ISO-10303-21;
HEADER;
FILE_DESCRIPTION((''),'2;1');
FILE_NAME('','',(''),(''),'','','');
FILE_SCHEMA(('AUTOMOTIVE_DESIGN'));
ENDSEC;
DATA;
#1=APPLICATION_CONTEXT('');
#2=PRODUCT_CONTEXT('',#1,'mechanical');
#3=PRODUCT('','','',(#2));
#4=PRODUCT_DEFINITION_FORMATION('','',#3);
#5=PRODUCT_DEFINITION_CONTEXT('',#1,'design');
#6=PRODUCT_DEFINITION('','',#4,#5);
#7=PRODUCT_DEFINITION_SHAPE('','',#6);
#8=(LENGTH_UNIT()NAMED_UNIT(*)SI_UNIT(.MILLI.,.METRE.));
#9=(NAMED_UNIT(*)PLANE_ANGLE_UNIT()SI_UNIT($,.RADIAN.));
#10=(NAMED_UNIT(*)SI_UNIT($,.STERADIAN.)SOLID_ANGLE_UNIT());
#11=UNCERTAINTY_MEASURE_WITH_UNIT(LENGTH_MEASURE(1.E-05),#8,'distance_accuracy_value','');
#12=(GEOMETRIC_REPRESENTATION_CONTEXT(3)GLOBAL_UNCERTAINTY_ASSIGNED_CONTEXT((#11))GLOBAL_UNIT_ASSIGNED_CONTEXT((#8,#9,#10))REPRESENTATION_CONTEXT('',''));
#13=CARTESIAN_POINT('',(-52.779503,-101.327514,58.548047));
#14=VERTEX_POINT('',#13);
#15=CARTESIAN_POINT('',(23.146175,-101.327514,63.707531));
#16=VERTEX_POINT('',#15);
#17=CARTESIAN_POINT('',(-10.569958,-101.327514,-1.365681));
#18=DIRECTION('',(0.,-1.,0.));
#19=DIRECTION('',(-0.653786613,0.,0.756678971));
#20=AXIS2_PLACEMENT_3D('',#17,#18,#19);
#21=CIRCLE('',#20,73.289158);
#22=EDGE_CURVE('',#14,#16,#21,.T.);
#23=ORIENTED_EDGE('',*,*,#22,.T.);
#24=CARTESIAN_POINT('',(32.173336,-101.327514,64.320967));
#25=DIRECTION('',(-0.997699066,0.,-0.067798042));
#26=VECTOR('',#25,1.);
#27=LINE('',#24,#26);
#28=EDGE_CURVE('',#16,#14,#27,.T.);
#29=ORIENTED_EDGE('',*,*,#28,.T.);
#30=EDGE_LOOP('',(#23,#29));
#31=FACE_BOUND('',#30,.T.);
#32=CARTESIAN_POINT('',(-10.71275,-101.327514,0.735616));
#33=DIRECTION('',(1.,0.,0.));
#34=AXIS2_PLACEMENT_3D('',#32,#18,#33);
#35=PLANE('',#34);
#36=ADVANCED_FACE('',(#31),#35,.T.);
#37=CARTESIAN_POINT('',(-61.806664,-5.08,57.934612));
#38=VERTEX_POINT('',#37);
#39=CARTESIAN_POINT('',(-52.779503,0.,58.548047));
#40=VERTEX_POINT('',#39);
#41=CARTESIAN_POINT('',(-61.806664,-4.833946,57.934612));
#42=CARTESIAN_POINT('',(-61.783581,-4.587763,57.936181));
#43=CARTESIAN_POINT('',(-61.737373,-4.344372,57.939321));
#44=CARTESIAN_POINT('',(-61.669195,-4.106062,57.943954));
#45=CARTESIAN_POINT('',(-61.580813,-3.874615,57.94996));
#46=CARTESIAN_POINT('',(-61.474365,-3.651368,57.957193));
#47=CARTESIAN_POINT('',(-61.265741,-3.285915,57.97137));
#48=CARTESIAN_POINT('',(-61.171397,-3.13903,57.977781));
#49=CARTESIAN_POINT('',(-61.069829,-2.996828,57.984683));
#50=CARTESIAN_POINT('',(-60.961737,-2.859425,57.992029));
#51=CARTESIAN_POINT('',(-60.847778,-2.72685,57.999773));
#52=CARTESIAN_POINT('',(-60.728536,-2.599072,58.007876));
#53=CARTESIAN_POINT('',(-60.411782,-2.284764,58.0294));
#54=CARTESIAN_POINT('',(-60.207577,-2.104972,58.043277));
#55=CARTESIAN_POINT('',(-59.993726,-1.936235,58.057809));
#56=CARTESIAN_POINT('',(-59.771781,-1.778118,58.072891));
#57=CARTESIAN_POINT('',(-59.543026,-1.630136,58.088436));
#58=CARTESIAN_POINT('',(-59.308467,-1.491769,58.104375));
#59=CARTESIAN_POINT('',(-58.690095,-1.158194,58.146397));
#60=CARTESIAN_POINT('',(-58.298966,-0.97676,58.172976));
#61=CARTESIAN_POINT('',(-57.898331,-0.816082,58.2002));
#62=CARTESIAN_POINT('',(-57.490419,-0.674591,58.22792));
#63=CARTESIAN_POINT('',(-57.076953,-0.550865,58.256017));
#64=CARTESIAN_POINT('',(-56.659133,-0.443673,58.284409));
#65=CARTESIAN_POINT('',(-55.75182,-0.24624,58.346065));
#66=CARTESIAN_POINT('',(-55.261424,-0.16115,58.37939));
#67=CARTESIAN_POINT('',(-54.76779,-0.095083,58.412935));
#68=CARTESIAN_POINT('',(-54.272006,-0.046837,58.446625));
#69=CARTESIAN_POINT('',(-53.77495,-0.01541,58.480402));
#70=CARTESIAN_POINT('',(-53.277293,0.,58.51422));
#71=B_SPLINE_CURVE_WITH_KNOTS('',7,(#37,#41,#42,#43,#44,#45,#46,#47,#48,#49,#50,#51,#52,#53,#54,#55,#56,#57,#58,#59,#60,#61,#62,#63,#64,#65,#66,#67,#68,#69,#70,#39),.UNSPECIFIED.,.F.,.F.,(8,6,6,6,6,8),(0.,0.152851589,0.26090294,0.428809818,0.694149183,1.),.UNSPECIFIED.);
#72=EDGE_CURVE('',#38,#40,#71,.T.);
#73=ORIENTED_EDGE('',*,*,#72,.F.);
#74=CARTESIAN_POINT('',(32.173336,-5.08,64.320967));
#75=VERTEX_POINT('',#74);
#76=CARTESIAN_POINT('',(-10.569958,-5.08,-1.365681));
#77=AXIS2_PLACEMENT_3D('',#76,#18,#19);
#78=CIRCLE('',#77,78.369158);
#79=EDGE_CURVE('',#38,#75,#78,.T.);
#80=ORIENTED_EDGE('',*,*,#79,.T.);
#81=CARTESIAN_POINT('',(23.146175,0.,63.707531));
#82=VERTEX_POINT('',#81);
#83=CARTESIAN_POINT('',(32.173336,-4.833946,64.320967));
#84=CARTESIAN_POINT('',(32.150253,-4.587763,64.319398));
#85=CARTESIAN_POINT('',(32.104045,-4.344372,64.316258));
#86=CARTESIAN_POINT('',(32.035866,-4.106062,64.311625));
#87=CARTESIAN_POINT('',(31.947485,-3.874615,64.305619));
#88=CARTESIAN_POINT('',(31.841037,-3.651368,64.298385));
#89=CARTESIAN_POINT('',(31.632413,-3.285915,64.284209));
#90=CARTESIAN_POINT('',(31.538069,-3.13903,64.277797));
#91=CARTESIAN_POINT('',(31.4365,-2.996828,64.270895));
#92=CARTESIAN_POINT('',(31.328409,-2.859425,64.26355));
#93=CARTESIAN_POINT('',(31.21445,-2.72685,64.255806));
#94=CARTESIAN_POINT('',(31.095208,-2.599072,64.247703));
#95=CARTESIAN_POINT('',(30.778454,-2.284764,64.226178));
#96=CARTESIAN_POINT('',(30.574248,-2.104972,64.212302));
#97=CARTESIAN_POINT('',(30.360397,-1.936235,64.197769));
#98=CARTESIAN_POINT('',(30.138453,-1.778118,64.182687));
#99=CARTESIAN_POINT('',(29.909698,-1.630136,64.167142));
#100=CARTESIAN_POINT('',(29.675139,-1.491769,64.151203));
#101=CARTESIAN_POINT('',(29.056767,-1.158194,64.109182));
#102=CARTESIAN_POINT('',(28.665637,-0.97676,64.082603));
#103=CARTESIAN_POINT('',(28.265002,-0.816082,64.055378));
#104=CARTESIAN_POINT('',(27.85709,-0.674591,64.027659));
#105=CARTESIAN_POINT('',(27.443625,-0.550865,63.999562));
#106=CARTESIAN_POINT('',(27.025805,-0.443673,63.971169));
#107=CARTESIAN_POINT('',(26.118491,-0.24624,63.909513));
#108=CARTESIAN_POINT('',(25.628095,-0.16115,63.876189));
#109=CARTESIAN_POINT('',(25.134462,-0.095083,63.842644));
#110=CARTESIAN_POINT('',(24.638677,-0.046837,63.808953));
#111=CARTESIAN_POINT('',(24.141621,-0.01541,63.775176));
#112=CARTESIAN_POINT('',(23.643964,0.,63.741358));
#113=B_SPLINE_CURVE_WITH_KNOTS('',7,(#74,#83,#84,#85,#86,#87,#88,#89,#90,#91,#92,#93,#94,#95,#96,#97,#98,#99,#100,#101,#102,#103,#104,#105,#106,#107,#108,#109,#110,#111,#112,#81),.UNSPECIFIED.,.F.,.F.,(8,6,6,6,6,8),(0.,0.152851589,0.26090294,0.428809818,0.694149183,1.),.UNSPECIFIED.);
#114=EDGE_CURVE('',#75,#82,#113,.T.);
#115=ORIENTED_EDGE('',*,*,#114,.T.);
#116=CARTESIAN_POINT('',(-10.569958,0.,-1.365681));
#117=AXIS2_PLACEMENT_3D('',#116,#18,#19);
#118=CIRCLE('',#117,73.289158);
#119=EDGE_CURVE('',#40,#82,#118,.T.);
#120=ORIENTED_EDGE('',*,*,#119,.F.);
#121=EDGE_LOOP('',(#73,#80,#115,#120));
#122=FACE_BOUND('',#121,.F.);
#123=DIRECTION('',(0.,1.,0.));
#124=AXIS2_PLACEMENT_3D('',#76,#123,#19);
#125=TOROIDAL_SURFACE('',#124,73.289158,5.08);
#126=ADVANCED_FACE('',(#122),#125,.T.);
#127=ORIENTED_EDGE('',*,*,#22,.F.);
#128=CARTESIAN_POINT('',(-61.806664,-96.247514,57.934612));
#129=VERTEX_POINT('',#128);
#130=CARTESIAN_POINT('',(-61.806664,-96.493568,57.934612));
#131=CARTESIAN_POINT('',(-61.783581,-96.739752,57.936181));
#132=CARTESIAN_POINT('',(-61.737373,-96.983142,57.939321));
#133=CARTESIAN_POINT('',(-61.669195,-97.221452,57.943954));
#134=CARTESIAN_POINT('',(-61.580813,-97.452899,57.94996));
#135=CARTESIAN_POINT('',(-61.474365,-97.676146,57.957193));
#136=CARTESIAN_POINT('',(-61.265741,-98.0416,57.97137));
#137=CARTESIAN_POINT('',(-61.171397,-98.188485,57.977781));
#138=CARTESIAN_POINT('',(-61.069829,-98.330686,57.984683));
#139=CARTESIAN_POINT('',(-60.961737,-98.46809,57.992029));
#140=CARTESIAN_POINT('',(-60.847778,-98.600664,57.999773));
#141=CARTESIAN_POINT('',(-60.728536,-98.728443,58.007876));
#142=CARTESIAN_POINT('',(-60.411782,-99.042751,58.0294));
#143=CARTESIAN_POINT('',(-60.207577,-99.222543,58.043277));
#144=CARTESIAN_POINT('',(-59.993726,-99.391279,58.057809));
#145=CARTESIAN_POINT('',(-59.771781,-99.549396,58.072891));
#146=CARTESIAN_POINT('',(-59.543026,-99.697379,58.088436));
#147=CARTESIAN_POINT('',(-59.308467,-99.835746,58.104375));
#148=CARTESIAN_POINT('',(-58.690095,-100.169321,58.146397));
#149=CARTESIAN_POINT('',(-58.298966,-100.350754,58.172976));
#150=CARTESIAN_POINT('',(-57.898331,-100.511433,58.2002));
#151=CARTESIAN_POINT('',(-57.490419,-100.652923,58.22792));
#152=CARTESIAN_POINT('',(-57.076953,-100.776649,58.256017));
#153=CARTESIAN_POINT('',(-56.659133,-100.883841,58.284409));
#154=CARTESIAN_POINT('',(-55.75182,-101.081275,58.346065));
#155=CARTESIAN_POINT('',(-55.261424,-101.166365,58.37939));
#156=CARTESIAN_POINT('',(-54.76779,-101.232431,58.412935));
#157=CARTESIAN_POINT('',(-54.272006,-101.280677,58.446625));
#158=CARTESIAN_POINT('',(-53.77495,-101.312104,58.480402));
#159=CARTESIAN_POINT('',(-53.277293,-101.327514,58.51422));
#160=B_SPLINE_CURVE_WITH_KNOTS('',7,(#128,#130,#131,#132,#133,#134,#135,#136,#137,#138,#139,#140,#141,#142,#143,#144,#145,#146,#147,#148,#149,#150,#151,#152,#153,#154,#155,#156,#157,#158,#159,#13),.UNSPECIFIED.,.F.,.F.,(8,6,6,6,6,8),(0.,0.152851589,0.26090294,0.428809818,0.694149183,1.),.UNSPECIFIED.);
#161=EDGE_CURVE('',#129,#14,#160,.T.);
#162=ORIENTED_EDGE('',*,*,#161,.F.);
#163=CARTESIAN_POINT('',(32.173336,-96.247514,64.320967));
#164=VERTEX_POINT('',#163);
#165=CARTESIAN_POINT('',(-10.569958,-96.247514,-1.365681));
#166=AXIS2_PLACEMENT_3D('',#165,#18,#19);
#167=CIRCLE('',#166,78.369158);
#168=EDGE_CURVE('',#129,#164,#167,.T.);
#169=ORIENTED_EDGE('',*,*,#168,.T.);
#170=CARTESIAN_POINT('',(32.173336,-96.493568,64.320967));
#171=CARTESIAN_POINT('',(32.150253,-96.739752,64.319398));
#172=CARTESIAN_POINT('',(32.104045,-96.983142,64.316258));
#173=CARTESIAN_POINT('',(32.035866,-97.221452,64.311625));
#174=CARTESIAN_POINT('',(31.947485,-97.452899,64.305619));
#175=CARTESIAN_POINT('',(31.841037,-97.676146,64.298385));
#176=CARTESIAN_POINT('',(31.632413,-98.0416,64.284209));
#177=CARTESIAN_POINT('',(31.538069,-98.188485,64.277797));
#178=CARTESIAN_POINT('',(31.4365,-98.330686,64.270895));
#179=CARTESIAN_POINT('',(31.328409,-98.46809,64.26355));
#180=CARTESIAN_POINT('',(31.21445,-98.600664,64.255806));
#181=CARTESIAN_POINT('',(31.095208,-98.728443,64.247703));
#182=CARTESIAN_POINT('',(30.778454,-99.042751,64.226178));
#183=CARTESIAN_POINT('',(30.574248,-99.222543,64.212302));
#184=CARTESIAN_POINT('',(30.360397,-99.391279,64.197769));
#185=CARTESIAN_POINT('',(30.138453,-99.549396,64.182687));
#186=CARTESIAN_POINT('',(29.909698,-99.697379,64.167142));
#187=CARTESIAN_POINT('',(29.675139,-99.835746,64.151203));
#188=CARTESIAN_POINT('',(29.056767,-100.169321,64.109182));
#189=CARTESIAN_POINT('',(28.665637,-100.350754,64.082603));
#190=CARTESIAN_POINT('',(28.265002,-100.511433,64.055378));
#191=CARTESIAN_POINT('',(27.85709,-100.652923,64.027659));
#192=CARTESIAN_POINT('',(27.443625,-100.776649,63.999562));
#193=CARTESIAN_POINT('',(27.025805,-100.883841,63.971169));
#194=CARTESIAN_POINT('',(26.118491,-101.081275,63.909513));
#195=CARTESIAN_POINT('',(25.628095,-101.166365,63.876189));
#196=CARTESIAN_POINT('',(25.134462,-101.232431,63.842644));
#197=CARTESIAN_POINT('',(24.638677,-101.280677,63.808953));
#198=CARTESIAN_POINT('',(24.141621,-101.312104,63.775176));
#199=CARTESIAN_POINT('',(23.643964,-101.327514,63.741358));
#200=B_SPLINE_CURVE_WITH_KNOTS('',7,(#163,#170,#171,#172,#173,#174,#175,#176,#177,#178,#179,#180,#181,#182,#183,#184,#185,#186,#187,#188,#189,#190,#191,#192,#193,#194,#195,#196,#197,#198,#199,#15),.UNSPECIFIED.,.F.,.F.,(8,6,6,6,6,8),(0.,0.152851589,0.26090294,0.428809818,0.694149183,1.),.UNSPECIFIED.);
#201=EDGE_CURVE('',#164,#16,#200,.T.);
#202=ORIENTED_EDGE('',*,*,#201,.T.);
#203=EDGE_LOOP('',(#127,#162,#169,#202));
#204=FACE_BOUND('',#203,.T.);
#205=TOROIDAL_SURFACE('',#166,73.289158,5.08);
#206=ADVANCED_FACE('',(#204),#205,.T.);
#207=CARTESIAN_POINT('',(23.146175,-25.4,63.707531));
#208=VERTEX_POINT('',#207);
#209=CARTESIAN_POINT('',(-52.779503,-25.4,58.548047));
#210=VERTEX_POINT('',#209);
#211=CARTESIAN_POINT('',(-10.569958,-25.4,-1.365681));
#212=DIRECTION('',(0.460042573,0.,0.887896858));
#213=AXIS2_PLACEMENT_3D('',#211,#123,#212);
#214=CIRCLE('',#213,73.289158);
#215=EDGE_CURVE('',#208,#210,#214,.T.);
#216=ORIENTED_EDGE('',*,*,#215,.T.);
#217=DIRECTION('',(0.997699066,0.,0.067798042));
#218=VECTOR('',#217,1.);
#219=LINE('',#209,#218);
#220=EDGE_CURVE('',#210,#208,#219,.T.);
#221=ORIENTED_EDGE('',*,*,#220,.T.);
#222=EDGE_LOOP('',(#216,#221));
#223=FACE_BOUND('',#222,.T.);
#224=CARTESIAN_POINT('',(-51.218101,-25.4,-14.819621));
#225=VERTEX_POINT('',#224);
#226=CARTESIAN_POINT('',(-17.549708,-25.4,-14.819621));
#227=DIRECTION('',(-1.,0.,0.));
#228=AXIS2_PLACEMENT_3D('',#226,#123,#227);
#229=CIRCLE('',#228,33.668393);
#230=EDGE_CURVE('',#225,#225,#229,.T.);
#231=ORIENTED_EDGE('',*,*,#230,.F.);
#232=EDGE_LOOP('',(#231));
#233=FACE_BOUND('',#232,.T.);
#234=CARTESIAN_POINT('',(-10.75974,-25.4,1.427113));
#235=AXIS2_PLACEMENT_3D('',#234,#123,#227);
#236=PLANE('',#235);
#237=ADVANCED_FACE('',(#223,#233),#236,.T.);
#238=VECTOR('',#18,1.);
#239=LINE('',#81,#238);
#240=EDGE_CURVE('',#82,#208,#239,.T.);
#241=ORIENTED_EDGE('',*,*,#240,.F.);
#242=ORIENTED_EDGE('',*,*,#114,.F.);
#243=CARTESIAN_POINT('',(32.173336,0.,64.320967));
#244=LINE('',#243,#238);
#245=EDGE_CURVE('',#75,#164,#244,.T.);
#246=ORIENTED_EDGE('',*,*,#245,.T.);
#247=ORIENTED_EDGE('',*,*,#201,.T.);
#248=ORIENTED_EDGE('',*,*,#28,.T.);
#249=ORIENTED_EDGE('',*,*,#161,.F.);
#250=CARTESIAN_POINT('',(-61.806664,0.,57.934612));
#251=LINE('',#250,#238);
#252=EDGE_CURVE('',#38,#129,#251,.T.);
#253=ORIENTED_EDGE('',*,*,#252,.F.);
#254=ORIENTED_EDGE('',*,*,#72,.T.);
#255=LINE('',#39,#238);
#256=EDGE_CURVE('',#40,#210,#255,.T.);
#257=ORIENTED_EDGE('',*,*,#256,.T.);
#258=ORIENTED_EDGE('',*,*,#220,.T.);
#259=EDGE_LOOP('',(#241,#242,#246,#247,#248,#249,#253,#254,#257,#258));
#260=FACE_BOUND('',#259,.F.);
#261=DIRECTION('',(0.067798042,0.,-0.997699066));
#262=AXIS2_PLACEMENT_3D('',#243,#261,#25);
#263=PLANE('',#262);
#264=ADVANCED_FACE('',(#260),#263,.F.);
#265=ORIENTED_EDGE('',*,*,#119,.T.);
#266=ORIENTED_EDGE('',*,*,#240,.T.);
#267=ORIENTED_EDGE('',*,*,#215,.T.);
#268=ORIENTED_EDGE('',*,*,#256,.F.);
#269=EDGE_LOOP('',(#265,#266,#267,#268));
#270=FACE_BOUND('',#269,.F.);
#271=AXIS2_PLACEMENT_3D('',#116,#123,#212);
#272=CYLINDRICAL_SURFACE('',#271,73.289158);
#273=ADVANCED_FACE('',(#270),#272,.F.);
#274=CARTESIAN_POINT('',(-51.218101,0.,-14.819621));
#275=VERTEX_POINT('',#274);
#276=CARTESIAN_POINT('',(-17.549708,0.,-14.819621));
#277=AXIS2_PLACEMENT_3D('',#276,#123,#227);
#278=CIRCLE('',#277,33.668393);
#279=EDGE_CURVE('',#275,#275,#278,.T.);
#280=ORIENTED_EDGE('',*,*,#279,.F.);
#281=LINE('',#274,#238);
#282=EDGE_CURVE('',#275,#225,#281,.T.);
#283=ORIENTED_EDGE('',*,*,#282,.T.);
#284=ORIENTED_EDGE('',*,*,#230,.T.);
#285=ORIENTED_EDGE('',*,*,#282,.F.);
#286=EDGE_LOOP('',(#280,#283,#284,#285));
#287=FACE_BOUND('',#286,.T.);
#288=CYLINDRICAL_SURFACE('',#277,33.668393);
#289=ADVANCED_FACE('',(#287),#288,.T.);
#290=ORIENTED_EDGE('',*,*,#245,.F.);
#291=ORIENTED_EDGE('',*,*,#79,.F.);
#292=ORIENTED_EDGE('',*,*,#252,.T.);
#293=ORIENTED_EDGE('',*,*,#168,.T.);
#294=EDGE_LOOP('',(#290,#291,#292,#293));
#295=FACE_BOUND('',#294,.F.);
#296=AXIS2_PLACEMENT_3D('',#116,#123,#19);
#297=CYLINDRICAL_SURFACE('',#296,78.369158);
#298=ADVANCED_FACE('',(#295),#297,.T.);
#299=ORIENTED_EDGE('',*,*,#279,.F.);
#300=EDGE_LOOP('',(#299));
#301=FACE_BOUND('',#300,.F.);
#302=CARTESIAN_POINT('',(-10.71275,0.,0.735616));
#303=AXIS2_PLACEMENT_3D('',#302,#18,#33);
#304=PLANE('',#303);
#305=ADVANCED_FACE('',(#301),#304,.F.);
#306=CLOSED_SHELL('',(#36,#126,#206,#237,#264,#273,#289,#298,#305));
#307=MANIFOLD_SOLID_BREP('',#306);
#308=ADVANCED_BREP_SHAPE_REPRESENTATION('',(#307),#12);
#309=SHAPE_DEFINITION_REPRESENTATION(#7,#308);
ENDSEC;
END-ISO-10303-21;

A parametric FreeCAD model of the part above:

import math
import FreeCAD as App
import Part
import Sketcher
from FreeCAD import Vector
Q = App.Units.Quantity


def edges_at(feature, points):
    """Names of the edges that pass closest to the given points."""
    edges = feature.Shape.Edges
    near = lambda p: min(range(len(edges)), key=lambda i: edges[i].distToShape(Part.Vertex(*p))[0])
    return sorted({f"Edge{near(p) + 1}" for p in points})

doc = App.newDocument("Part")
body = doc.addObject("PartDesign::Body", "Body")

sketch1 = doc.addObject("Sketcher::SketchObject", "Sketch")
body.addObject(sketch1)
sketch1.AttachmentSupport = (doc.XZ_Plane, [""])
sketch1.MapMode = "FlatFace"
sketch1.addGeometry([
    Part.LineSegment(Vector(32, 64, 0), Vector(-62, 58, 0)),
    Part.ArcOfCircle(Part.Circle(Vector(-11, -1, 0), Vector(0, 0, 1), 78), math.radians(131), math.radians(417)),
], False)
sketch1.addConstraint([
    Sketcher.Constraint("Coincident", 0, 1, 1, 2),
    Sketcher.Constraint("Coincident", 1, 1, 0, 2),
    Sketcher.Constraint("Radius", 1, Q("3.0853999 in")),
    Sketcher.Constraint("DistanceX", 1, 1, 0, 1, Q("3.7 in")),
    Sketcher.Constraint("Distance", 0, 94.19674),
    Sketcher.Constraint("DistanceY", 1, 3, -1, 1, 1.365681),
    Sketcher.Constraint("DistanceX", 1, 3, -1, 1, 10.569958),
])
pad1 = doc.addObject("PartDesign::Pad", "Pad")
body.addObject(pad1)
pad1.Profile = sketch1
pad1.Length = 101.327514
doc.recompute()

fillet = doc.addObject("PartDesign::Fillet", "Fillet")
body.addObject(fillet)
fillet.Base = (pad1, edges_at(pad1, [(-5.257, -101.328, -79.555)]))
fillet.Radius = Q("0.2 in")
doc.recompute()

fillet2 = doc.addObject("PartDesign::Fillet", "Fillet001")
body.addObject(fillet2)
fillet2.Base = (fillet, edges_at(fillet, [(-5.257, 0, -79.555)]))
fillet2.Radius = Q("0.2 in")

sketch2 = doc.addObject("Sketcher::SketchObject", "Sketch001")
body.addObject(sketch2)
sketch2.AttachmentSupport = (doc.XZ_Plane, [""])
sketch2.MapMode = "FlatFace"
sketch2.addGeometry([
    Part.ArcOfCircle(Part.Circle(Vector(-11, -1, 0), Vector(0, 0, 1), 73), math.radians(125), math.radians(423)),
    Part.LineSegment(Vector(-53, 59, 0), Vector(23, 64, 0)),
    Part.Circle(Vector(-18, -15, 0), Vector(0, 0, 1), 34),
], False)
sketch2.addConstraint([
    Sketcher.Constraint("Coincident", 0, 1, 1, 1),
    Sketcher.Constraint("Coincident", 1, 2, 0, 2),
    Sketcher.Constraint("Radius", 0, Q("2.8853999 in")),
    Sketcher.Constraint("Diameter", 2, 67.336785),
    Sketcher.Constraint("DistanceX", 0, 1, 1, 2, Q("2.9891999 in")),
    Sketcher.Constraint("DistanceX", 2, 3, 1, 2, Q("1.6022001 in")),
    Sketcher.Constraint("Distance", 1, 76.100781),
    Sketcher.Constraint("DistanceY", 0, 3, -1, 1, 1.365681),
    Sketcher.Constraint("DistanceX", 2, 3, -1, 1, 17.549708),
    Sketcher.Constraint("DistanceY", 2, 3, -1, 1, 14.819621),
])
pocket1 = doc.addObject("PartDesign::Pocket", "Pocket")
body.addObject(pocket1)
pocket1.Profile = sketch2
pocket1.Length = Q("1 in")
pocket1.Reversed = True

doc.recompute()
